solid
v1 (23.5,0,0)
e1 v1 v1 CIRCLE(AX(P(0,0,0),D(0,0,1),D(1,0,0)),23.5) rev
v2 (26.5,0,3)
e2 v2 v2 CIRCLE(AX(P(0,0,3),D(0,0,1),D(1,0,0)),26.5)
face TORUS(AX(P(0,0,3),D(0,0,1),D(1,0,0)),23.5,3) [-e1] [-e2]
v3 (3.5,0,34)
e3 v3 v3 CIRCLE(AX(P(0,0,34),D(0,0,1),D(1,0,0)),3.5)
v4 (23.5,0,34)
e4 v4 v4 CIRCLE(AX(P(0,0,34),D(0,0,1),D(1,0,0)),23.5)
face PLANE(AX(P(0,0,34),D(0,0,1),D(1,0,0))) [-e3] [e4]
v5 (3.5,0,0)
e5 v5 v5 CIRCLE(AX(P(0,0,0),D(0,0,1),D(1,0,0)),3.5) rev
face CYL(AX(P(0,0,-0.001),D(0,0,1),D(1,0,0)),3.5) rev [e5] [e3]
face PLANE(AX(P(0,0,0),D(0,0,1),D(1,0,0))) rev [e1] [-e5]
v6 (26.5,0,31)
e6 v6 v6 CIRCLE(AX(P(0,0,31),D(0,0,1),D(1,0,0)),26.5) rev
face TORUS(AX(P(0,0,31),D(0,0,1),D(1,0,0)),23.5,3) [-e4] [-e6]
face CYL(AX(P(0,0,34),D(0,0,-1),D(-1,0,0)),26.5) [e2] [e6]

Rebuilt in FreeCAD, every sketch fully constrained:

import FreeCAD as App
import Part
import Sketcher
from FreeCAD import Vector


def edges_at(feature, points):
    """Names of the edges that pass closest to the given points."""
    edges = feature.Shape.Edges
    near = lambda p: min(range(len(edges)), key=lambda i: edges[i].distToShape(Part.Vertex(*p))[0])
    return sorted({f"Edge{near(p) + 1}" for p in points})

doc = App.newDocument("Part")
params = doc.addObject("Spreadsheet::Sheet", "Params")
for row, (alias, value) in enumerate([
    ("sketch1_diameter", "53 mm"),
    ("pad1_length", "34 mm"),
    ("fillet_radius", "3 mm"),
    ("sketch2_diameter", "7 mm"),
], start=1):
    params.set(f"A{row}", alias)
    params.set(f"B{row}", "=" + value)
    params.setAlias(f"B{row}", alias)

body = doc.addObject("PartDesign::Body", "Body")

# Sketch on XY plane
sketch1 = body.newObject("Sketcher::SketchObject", "Sketch")
sketch1.AttachmentSupport = (doc.getObject("XY_Plane"), [""])
sketch1.MapMode = "FlatFace"
sketch1.addGeometry(Part.Circle(Vector(0, 0, 0), Vector(0, 0, 1), 26.5), False)
sketch1.addConstraint([
    Sketcher.Constraint("Coincident", 0, 3, -1, 1),
    Sketcher.Constraint("Diameter", 0, 53.0),
])
sketch1.setExpression("Constraints[1]", "Params.sketch1_diameter")
pad1 = body.newObject("PartDesign::Pad", "Pad")
pad1.Profile = sketch1
pad1.setExpression("Length", "Params.pad1_length")
doc.recompute()

fillet = body.newObject("PartDesign::Fillet", "Fillet")
fillet.Base = (pad1, edges_at(pad1, [(-26.5, 0, 0), (-26.5, 0, 34)]))
fillet.setExpression("Radius", "Params.fillet_radius")

# Sketch on XY plane
sketch2 = body.newObject("Sketcher::SketchObject", "Sketch001")
sketch2.AttachmentSupport = (doc.getObject("XY_Plane"), [""])
sketch2.MapMode = "FlatFace"
sketch2.AttachmentOffset = App.Placement(Vector(0, 0, 34), App.Rotation())
sketch2.addGeometry(Part.Circle(Vector(0, 0, 0), Vector(0, 0, 1), 3.5), False)
sketch2.addConstraint([
    Sketcher.Constraint("Coincident", 0, 3, -1, 1),
    Sketcher.Constraint("Diameter", 0, 7.0),
])
sketch2.setExpression("Constraints[1]", "Params.sketch2_diameter")
pocket1 = body.newObject("PartDesign::Pocket", "Pocket")
pocket1.Profile = sketch2
pocket1.Type = "UpToFirst"

doc.recompute()
